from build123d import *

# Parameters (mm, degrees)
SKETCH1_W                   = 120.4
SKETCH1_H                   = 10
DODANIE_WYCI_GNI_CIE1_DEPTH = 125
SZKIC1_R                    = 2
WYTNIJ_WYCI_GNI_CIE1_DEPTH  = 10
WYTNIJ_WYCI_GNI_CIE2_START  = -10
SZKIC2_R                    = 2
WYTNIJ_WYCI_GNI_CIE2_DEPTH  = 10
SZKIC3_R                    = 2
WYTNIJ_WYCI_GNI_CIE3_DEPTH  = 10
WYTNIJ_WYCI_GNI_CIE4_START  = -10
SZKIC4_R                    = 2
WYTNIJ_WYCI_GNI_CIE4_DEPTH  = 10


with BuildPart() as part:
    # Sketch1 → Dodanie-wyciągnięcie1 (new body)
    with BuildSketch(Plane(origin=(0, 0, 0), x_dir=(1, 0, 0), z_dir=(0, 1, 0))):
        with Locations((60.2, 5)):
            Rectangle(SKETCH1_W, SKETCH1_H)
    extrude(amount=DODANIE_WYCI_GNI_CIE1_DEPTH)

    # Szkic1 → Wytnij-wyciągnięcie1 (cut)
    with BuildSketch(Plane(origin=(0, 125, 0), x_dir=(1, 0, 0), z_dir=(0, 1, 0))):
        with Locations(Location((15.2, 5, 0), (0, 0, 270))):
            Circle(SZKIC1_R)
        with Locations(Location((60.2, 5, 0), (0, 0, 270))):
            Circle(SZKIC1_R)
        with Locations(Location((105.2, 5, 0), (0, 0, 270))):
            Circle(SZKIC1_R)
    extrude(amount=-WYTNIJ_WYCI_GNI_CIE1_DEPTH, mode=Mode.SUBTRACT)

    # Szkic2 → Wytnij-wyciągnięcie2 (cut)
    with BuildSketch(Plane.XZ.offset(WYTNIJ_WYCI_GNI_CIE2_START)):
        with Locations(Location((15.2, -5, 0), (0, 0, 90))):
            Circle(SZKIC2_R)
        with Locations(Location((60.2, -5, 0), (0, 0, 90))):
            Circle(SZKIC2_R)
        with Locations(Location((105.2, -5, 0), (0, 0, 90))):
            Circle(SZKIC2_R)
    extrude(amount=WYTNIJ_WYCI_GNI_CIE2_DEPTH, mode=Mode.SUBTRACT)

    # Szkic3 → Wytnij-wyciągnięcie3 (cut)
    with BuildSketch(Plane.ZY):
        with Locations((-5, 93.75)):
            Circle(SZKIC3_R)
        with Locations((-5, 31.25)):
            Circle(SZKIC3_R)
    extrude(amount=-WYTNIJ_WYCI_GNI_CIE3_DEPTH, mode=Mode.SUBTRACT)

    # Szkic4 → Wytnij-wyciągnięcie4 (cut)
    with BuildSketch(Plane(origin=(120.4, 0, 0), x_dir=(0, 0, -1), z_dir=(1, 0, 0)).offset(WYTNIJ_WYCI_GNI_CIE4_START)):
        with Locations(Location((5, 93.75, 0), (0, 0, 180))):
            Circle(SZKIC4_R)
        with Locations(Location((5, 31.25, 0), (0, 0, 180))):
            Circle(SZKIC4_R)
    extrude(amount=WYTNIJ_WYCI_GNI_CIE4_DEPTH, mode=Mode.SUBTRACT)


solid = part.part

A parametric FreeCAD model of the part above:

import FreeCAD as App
import Part
import Sketcher
from FreeCAD import Vector

doc = App.newDocument("Part")
body = doc.addObject("PartDesign::Body", "Body")

sketch1 = body.newObject("Sketcher::SketchObject", "Sketch")
sketch1.AttachmentSupport = (doc.getObject("XZ_Plane"), [""])
sketch1.MapMode = "FlatFace"
sketch1.addGeometry([
    Part.LineSegment(Vector(0, -10, 0), Vector(0, 0, 0)),
    Part.LineSegment(Vector(0, 0, 0), Vector(120, 0, 0)),
    Part.LineSegment(Vector(120, 0, 0), Vector(120, -10, 0)),
    Part.LineSegment(Vector(120, -10, 0), Vector(0, -10, 0)),
], False)
sketch1.addConstraint([
    Sketcher.Constraint("Coincident", 0, 2, 1, 1),
    Sketcher.Constraint("Coincident", 1, 2, 2, 1),
    Sketcher.Constraint("Coincident", 2, 2, 3, 1),
    Sketcher.Constraint("Coincident", 3, 2, 0, 1),
    Sketcher.Constraint("Vertical", 0),
    Sketcher.Constraint("Horizontal", 1),
    Sketcher.Constraint("Vertical", 2),
    Sketcher.Constraint("Horizontal", 3),
    Sketcher.Constraint("Coincident", 0, 2, -1, 1),
    Sketcher.Constraint("DistanceY", 0, 1, 0, 2, 10.0),
    Sketcher.Constraint("DistanceX", 1, 1, 1, 2, 120.4),
])
pad1 = body.newObject("PartDesign::Pad", "Pad")
pad1.Profile = sketch1
pad1.Length = 125
pad1.Reversed = True

sketch2 = body.newObject("Sketcher::SketchObject", "Sketch001")
sketch2.AttachmentSupport = (doc.getObject("XZ_Plane"), [""])
sketch2.MapMode = "FlatFace"
sketch2.AttachmentOffset = App.Placement(Vector(0, 0, -125), App.Rotation())
sketch2.addGeometry([
    Part.Circle(Vector(15.2, -5, 0), Vector(0, 0, 1), 2),
    Part.Circle(Vector(60.2, -5, 0), Vector(0, 0, 1), 2),
    Part.Circle(Vector(105.2, -5, 0), Vector(0, 0, 1), 2),
], False)
sketch2.addConstraint([
    Sketcher.Constraint("Equal", 0, 1),
    Sketcher.Constraint("Equal", 1, 2),
    Sketcher.Constraint("Horizontal", 0, 3, 1, 3),
    Sketcher.Constraint("Horizontal", 1, 3, 2, 3),
    Sketcher.Constraint("Diameter", 0, 4.0),
    Sketcher.Constraint("DistanceY", 0, 3, -1, 1, 5.0),
    Sketcher.Constraint("DistanceX", 0, 3, 1, 3, 45.0),
    Sketcher.Constraint("DistanceX", 1, 3, 2, 3, 45.0),
    Sketcher.Constraint("DistanceX", -1, 1, 0, 3, 15.2),
])
pocket1 = body.newObject("PartDesign::Pocket", "Pocket")
pocket1.Profile = sketch2
pocket1.Length = 10
pocket1.Reversed = True

sketch3 = body.newObject("Sketcher::SketchObject", "Sketch002")
sketch3.AttachmentSupport = (doc.getObject("XZ_Plane"), [""])
sketch3.MapMode = "FlatFace"
sketch3.AttachmentOffset = App.Placement(Vector(0, 0, -10), App.Rotation())
sketch3.addGeometry([
    Part.Circle(Vector(15.2, -5, 0), Vector(0, 0, 1), 2),
    Part.Circle(Vector(60.2, -5, 0), Vector(0, 0, 1), 2),
    Part.Circle(Vector(105.2, -5, 0), Vector(0, 0, 1), 2),
], False)
sketch3.addConstraint([
    Sketcher.Constraint("Equal", 0, 1),
    Sketcher.Constraint("Equal", 1, 2),
    Sketcher.Constraint("Horizontal", 0, 3, 1, 3),
    Sketcher.Constraint("Horizontal", 1, 3, 2, 3),
    Sketcher.Constraint("Diameter", 0, 4.0),
    Sketcher.Constraint("DistanceY", 0, 3, -1, 1, 5.0),
    Sketcher.Constraint("DistanceX", 0, 3, 1, 3, 45.0),
    Sketcher.Constraint("DistanceX", 1, 3, 2, 3, 45.0),
    Sketcher.Constraint("DistanceX", -1, 1, 0, 3, 15.2),
])
pocket2 = body.newObject("PartDesign::Pocket", "Pocket001")
pocket2.Profile = sketch3
pocket2.Length = 10
pocket2.Reversed = True

sketch4 = body.newObject("Sketcher::SketchObject", "Sketch003")
sketch4.AttachmentSupport = (doc.getObject("YZ_Plane"), [""])
sketch4.MapMode = "FlatFace"
sketch4.addGeometry([
    Part.Circle(Vector(93.8, -5, 0), Vector(0, 0, 1), 2),
    Part.Circle(Vector(31.2, -5, 0), Vector(0, 0, 1), 2),
], False)
sketch4.addConstraint([
    Sketcher.Constraint("Equal", 0, 1),
    Sketcher.Constraint("Horizontal", 0, 3, 1, 3),
    Sketcher.Constraint("Diameter", 0, 4.0),
    Sketcher.Constraint("DistanceY", 0, 3, -1, 1, 5.0),
    Sketcher.Constraint("DistanceX", 1, 3, 0, 3, 62.5),
    Sketcher.Constraint("DistanceX", -1, 1, 0, 3, 93.75),
])
pocket3 = body.newObject("PartDesign::Pocket", "Pocket002")
pocket3.Profile = sketch4
pocket3.Length = 10
pocket3.Reversed = True

sketch5 = body.newObject("Sketcher::SketchObject", "Sketch004")
sketch5.AttachmentSupport = (doc.getObject("YZ_Plane"), [""])
sketch5.MapMode = "FlatFace"
sketch5.AttachmentOffset = App.Placement(Vector(0, 0, 110.4), App.Rotation())
sketch5.addGeometry([
    Part.Circle(Vector(93.8, -5, 0), Vector(0, 0, 1), 2),
    Part.Circle(Vector(31.2, -5, 0), Vector(0, 0, 1), 2),
], False)
sketch5.addConstraint([
    Sketcher.Constraint("Equal", 0, 1),
    Sketcher.Constraint("Horizontal", 0, 3, 1, 3),
    Sketcher.Constraint("Diameter", 0, 4.0),
    Sketcher.Constraint("DistanceY", 0, 3, -1, 1, 5.0),
    Sketcher.Constraint("DistanceX", 1, 3, 0, 3, 62.5),
    Sketcher.Constraint("DistanceX", -1, 1, 0, 3, 93.75),
])
pocket4 = body.newObject("PartDesign::Pocket", "Pocket003")
pocket4.Profile = sketch5
pocket4.Length = 10
pocket4.Reversed = True

doc.recompute()
